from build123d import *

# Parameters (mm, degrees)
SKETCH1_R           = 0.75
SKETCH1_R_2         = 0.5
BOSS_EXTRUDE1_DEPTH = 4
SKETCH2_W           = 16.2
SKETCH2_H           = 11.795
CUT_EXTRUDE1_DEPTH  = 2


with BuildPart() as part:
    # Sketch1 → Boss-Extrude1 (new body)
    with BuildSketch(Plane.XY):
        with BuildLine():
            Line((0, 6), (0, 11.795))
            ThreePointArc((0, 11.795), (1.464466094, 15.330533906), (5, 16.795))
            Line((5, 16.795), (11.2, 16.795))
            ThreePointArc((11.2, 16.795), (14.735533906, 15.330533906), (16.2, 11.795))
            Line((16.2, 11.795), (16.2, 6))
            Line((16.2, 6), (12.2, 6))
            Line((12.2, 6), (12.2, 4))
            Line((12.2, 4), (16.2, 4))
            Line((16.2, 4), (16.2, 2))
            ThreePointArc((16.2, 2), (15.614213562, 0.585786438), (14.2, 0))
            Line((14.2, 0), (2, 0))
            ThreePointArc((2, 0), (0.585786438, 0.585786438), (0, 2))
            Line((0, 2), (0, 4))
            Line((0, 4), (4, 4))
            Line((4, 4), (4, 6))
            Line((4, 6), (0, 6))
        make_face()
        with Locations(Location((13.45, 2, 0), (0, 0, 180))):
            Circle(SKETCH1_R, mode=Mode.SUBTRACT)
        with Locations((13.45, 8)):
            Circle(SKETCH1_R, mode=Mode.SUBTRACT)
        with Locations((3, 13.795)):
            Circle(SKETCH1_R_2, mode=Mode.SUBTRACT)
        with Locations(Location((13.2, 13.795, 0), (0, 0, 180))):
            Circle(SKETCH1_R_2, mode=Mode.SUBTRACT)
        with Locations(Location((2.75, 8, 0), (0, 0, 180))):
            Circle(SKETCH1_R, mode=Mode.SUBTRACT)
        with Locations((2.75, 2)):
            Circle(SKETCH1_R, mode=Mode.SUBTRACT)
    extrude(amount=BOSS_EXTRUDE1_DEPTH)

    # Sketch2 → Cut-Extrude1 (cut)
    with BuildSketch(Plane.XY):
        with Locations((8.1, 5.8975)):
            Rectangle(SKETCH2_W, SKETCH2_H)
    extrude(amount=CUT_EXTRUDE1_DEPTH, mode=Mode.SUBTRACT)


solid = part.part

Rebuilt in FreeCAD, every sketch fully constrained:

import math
import FreeCAD as App
import Part
import Sketcher

V = App.Vector


def add_polygon(sketch, points):
    """Adds a closed chain of lines whose ends are joined by coincident constraints."""
    first, n = sketch.GeometryCount, len(points)
    for a, b in zip(points, points[1:] + points[:1]):
        sketch.addGeometry(Part.LineSegment(App.Vector(*a, 0), App.Vector(*b, 0)), False)
    for i in range(n):
        sketch.addConstraint(Sketcher.Constraint("Coincident", first + i, 2, first + (i + 1) % n, 1))

doc = App.newDocument("Part")
body = doc.addObject("PartDesign::Body", "Body")

sketch1 = body.newObject("Sketcher::SketchObject", "Sketch")
sketch1.AttachmentSupport = (doc.getObject("XY_Plane"), [""])
sketch1.MapMode = "FlatFace"
sketch1.addGeometry(Part.LineSegment(V(0, 11.8, 0), V(0, 6, 0)), False)
sketch1.addGeometry(Part.LineSegment(V(0, 6, 0), V(4, 6, 0)), False)
sketch1.addGeometry(Part.LineSegment(V(4, 6, 0), V(4, 4, 0)), False)
sketch1.addGeometry(Part.LineSegment(V(4, 4, 0), V(0, 4, 0)), False)
sketch1.addGeometry(Part.LineSegment(V(0, 4, 0), V(0, 2, 0)), False)
sketch1.addGeometry(Part.ArcOfCircle(Part.Circle(V(2, 2, 0), V(0, 0, 1), 2), math.radians(-180), math.radians(-90)), False)
sketch1.addGeometry(Part.LineSegment(V(2, 0, 0), V(14.2, 0, 0)), False)
sketch1.addGeometry(Part.ArcOfCircle(Part.Circle(V(14.2, 2, 0), V(0, 0, 1), 2), math.radians(-90), math.radians(0)), False)
sketch1.addGeometry(Part.LineSegment(V(16.2, 2, 0), V(16.2, 4, 0)), False)
sketch1.addGeometry(Part.LineSegment(V(16.2, 4, 0), V(12.2, 4, 0)), False)
sketch1.addGeometry(Part.LineSegment(V(12.2, 4, 0), V(12.2, 6, 0)), False)
sketch1.addGeometry(Part.LineSegment(V(12.2, 6, 0), V(16.2, 6, 0)), False)
sketch1.addGeometry(Part.LineSegment(V(16.2, 6, 0), V(16.2, 11.8, 0)), False)
sketch1.addGeometry(Part.ArcOfCircle(Part.Circle(V(11.2, 11.8, 0), V(0, 0, 1), 5), math.radians(0), math.radians(90)), False)
sketch1.addGeometry(Part.LineSegment(V(11.2, 16.8, 0), V(5, 16.8, 0)), False)
sketch1.addGeometry(Part.ArcOfCircle(Part.Circle(V(5, 11.8, 0), V(0, 0, 1), 5), math.radians(90), math.radians(180)), False)
sketch1.addGeometry(Part.Circle(V(13.4, 2, 0), V(0, 0, 1), 0.8), False)
sketch1.addGeometry(Part.Circle(V(2.8, 2, 0), V(0, 0, 1), 0.8), False)
sketch1.addGeometry(Part.Circle(V(13.4, 8, 0), V(0, 0, 1), 0.8), False)
sketch1.addGeometry(Part.Circle(V(13.2, 13.8, 0), V(0, 0, 1), 0.5), False)
sketch1.addGeometry(Part.Circle(V(2.8, 8, 0), V(0, 0, 1), 0.8), False)
sketch1.addGeometry(Part.Circle(V(3, 13.8, 0), V(0, 0, 1), 0.5), False)
sketch1.addConstraint(Sketcher.Constraint("Coincident", 0, 2, 1, 1))
sketch1.addConstraint(Sketcher.Constraint("Coincident", 1, 2, 2, 1))
sketch1.addConstraint(Sketcher.Constraint("Coincident", 2, 2, 3, 1))
sketch1.addConstraint(Sketcher.Constraint("Coincident", 3, 2, 4, 1))
sketch1.addConstraint(Sketcher.Constraint("Tangent", 4, 2, 5, 1))
sketch1.addConstraint(Sketcher.Constraint("Tangent", 5, 2, 6, 1))
sketch1.addConstraint(Sketcher.Constraint("Tangent", 6, 2, 7, 1))
sketch1.addConstraint(Sketcher.Constraint("Tangent", 7, 2, 8, 1))
sketch1.addConstraint(Sketcher.Constraint("Coincident", 8, 2, 9, 1))
sketch1.addConstraint(Sketcher.Constraint("Coincident", 9, 2, 10, 1))
sketch1.addConstraint(Sketcher.Constraint("Coincident", 10, 2, 11, 1))
sketch1.addConstraint(Sketcher.Constraint("Coincident", 11, 2, 12, 1))
sketch1.addConstraint(Sketcher.Constraint("Tangent", 12, 2, 13, 1))
sketch1.addConstraint(Sketcher.Constraint("Tangent", 13, 2, 14, 1))
sketch1.addConstraint(Sketcher.Constraint("Tangent", 14, 2, 15, 1))
sketch1.addConstraint(Sketcher.Constraint("Tangent", 15, 2, 0, 1))
sketch1.addConstraint(Sketcher.Constraint("Vertical", 0))
sketch1.addConstraint(Sketcher.Constraint("Horizontal", 1))
sketch1.addConstraint(Sketcher.Constraint("Vertical", 2))
sketch1.addConstraint(Sketcher.Constraint("Horizontal", 3))
sketch1.addConstraint(Sketcher.Constraint("Vertical", 4))
sketch1.addConstraint(Sketcher.Constraint("Horizontal", 6))
sketch1.addConstraint(Sketcher.Constraint("Vertical", 8))
sketch1.addConstraint(Sketcher.Constraint("Horizontal", 9))
sketch1.addConstraint(Sketcher.Constraint("Vertical", 10))
sketch1.addConstraint(Sketcher.Constraint("Horizontal", 11))
sketch1.addConstraint(Sketcher.Constraint("Vertical", 12))
sketch1.addConstraint(Sketcher.Constraint("Horizontal", 14))
sketch1.addConstraint(Sketcher.Constraint("Equal", 5, 7))
sketch1.addConstraint(Sketcher.Constraint("Equal", 13, 15))
sketch1.addConstraint(Sketcher.Constraint("Equal", 16, 17))
sketch1.addConstraint(Sketcher.Constraint("Equal", 17, 18))
sketch1.addConstraint(Sketcher.Constraint("Equal", 18, 20))
sketch1.addConstraint(Sketcher.Constraint("Equal", 19, 21))
sketch1.addConstraint(Sketcher.Constraint("PointOnObject", 0, 2, -2))
sketch1.addConstraint(Sketcher.Constraint("PointOnObject", 3, 2, -2))
sketch1.addConstraint(Sketcher.Constraint("PointOnObject", 5, 2, -1))
sketch1.addConstraint(Sketcher.Constraint("Horizontal", 7, 3, 16, 3))
sketch1.addConstraint(Sketcher.Constraint("Horizontal", 16, 3, 17, 3))
sketch1.addConstraint(Sketcher.Constraint("Horizontal", 18, 3, 20, 3))
sketch1.addConstraint(Sketcher.Constraint("Horizontal", 19, 3, 21, 3))
sketch1.addConstraint(Sketcher.Constraint("Horizontal", 3, 2, 8, 2))
sketch1.addConstraint(Sketcher.Constraint("Horizontal", 1, 2, 10, 2))
sketch1.addConstraint(Sketcher.Constraint("Vertical", 16, 3, 18, 3))
sketch1.addConstraint(Sketcher.Constraint("Vertical", 17, 3, 20, 3))
sketch1.addConstraint(Sketcher.Constraint("Vertical", 8, 2, 11, 2))
sketch1.addConstraint(Sketcher.Constraint("Equal", 3, 9))
sketch1.addConstraint(Sketcher.Constraint("Equal", 2, 4))
sketch1.addConstraint(Sketcher.Constraint("Diameter", 19, 1.0))
sketch1.addConstraint(Sketcher.Constraint("Radius", 5, 2.0))
sketch1.addConstraint(Sketcher.Constraint("Radius", 13, 5.0))
sketch1.addConstraint(Sketcher.Constraint("Diameter", 16, 1.5))
sketch1.addConstraint(Sketcher.Constraint("DistanceX", 1, 1, 1, 2, 4.0))
sketch1.addConstraint(Sketcher.Constraint("DistanceY", 2, 2, 2, 1, 2.0))
sketch1.addConstraint(Sketcher.Constraint("DistanceX", 6, 1, 6, 2, 12.2))
sketch1.addConstraint(Sketcher.Constraint("DistanceY", -1, 1, 18, 3, 8.0))
sketch1.addConstraint(Sketcher.Constraint("DistanceX", -1, 1, 21, 3, 3.0))
sketch1.addConstraint(Sketcher.Constraint("DistanceX", 13, 3, 19, 3, 2.0))
sketch1.addConstraint(Sketcher.Constraint("DistanceY", 13, 3, 19, 3, 2.0))
sketch1.addConstraint(Sketcher.Constraint("DistanceX", 17, 3, 16, 3, 10.7))
sketch1.addConstraint(Sketcher.Constraint("DistanceY", 0, 2, 0, 1, 5.795))
sketch1.addConstraint(Sketcher.Constraint("DistanceX", -1, 1, 16, 3, 13.45))
pad1 = body.newObject("PartDesign::Pad", "Pad")
pad1.Profile = sketch1
pad1.Length = 4

sketch2 = body.newObject("Sketcher::SketchObject", "Sketch001")
sketch2.AttachmentSupport = (doc.getObject("XY_Plane"), [""])
sketch2.MapMode = "FlatFace"
add_polygon(sketch2, [(0, 12), (0, 0), (16, 0), (16, 12)])
sketch2.addConstraint(Sketcher.Constraint("Vertical", 0))
sketch2.addConstraint(Sketcher.Constraint("Horizontal", 1))
sketch2.addConstraint(Sketcher.Constraint("Vertical", 2))
sketch2.addConstraint(Sketcher.Constraint("Horizontal", 3))
sketch2.addConstraint(Sketcher.Constraint("Coincident", 0, 2, -1, 1))
sketch2.addConstraint(Sketcher.Constraint("DistanceX", 1, 1, 1, 2, 16.2))
sketch2.addConstraint(Sketcher.Constraint("DistanceY", 0, 2, 0, 1, 11.795))
pocket1 = body.newObject("PartDesign::Pocket", "Pocket")
pocket1.Profile = sketch2
pocket1.Length = 2
pocket1.Reversed = True

doc.recompute()
